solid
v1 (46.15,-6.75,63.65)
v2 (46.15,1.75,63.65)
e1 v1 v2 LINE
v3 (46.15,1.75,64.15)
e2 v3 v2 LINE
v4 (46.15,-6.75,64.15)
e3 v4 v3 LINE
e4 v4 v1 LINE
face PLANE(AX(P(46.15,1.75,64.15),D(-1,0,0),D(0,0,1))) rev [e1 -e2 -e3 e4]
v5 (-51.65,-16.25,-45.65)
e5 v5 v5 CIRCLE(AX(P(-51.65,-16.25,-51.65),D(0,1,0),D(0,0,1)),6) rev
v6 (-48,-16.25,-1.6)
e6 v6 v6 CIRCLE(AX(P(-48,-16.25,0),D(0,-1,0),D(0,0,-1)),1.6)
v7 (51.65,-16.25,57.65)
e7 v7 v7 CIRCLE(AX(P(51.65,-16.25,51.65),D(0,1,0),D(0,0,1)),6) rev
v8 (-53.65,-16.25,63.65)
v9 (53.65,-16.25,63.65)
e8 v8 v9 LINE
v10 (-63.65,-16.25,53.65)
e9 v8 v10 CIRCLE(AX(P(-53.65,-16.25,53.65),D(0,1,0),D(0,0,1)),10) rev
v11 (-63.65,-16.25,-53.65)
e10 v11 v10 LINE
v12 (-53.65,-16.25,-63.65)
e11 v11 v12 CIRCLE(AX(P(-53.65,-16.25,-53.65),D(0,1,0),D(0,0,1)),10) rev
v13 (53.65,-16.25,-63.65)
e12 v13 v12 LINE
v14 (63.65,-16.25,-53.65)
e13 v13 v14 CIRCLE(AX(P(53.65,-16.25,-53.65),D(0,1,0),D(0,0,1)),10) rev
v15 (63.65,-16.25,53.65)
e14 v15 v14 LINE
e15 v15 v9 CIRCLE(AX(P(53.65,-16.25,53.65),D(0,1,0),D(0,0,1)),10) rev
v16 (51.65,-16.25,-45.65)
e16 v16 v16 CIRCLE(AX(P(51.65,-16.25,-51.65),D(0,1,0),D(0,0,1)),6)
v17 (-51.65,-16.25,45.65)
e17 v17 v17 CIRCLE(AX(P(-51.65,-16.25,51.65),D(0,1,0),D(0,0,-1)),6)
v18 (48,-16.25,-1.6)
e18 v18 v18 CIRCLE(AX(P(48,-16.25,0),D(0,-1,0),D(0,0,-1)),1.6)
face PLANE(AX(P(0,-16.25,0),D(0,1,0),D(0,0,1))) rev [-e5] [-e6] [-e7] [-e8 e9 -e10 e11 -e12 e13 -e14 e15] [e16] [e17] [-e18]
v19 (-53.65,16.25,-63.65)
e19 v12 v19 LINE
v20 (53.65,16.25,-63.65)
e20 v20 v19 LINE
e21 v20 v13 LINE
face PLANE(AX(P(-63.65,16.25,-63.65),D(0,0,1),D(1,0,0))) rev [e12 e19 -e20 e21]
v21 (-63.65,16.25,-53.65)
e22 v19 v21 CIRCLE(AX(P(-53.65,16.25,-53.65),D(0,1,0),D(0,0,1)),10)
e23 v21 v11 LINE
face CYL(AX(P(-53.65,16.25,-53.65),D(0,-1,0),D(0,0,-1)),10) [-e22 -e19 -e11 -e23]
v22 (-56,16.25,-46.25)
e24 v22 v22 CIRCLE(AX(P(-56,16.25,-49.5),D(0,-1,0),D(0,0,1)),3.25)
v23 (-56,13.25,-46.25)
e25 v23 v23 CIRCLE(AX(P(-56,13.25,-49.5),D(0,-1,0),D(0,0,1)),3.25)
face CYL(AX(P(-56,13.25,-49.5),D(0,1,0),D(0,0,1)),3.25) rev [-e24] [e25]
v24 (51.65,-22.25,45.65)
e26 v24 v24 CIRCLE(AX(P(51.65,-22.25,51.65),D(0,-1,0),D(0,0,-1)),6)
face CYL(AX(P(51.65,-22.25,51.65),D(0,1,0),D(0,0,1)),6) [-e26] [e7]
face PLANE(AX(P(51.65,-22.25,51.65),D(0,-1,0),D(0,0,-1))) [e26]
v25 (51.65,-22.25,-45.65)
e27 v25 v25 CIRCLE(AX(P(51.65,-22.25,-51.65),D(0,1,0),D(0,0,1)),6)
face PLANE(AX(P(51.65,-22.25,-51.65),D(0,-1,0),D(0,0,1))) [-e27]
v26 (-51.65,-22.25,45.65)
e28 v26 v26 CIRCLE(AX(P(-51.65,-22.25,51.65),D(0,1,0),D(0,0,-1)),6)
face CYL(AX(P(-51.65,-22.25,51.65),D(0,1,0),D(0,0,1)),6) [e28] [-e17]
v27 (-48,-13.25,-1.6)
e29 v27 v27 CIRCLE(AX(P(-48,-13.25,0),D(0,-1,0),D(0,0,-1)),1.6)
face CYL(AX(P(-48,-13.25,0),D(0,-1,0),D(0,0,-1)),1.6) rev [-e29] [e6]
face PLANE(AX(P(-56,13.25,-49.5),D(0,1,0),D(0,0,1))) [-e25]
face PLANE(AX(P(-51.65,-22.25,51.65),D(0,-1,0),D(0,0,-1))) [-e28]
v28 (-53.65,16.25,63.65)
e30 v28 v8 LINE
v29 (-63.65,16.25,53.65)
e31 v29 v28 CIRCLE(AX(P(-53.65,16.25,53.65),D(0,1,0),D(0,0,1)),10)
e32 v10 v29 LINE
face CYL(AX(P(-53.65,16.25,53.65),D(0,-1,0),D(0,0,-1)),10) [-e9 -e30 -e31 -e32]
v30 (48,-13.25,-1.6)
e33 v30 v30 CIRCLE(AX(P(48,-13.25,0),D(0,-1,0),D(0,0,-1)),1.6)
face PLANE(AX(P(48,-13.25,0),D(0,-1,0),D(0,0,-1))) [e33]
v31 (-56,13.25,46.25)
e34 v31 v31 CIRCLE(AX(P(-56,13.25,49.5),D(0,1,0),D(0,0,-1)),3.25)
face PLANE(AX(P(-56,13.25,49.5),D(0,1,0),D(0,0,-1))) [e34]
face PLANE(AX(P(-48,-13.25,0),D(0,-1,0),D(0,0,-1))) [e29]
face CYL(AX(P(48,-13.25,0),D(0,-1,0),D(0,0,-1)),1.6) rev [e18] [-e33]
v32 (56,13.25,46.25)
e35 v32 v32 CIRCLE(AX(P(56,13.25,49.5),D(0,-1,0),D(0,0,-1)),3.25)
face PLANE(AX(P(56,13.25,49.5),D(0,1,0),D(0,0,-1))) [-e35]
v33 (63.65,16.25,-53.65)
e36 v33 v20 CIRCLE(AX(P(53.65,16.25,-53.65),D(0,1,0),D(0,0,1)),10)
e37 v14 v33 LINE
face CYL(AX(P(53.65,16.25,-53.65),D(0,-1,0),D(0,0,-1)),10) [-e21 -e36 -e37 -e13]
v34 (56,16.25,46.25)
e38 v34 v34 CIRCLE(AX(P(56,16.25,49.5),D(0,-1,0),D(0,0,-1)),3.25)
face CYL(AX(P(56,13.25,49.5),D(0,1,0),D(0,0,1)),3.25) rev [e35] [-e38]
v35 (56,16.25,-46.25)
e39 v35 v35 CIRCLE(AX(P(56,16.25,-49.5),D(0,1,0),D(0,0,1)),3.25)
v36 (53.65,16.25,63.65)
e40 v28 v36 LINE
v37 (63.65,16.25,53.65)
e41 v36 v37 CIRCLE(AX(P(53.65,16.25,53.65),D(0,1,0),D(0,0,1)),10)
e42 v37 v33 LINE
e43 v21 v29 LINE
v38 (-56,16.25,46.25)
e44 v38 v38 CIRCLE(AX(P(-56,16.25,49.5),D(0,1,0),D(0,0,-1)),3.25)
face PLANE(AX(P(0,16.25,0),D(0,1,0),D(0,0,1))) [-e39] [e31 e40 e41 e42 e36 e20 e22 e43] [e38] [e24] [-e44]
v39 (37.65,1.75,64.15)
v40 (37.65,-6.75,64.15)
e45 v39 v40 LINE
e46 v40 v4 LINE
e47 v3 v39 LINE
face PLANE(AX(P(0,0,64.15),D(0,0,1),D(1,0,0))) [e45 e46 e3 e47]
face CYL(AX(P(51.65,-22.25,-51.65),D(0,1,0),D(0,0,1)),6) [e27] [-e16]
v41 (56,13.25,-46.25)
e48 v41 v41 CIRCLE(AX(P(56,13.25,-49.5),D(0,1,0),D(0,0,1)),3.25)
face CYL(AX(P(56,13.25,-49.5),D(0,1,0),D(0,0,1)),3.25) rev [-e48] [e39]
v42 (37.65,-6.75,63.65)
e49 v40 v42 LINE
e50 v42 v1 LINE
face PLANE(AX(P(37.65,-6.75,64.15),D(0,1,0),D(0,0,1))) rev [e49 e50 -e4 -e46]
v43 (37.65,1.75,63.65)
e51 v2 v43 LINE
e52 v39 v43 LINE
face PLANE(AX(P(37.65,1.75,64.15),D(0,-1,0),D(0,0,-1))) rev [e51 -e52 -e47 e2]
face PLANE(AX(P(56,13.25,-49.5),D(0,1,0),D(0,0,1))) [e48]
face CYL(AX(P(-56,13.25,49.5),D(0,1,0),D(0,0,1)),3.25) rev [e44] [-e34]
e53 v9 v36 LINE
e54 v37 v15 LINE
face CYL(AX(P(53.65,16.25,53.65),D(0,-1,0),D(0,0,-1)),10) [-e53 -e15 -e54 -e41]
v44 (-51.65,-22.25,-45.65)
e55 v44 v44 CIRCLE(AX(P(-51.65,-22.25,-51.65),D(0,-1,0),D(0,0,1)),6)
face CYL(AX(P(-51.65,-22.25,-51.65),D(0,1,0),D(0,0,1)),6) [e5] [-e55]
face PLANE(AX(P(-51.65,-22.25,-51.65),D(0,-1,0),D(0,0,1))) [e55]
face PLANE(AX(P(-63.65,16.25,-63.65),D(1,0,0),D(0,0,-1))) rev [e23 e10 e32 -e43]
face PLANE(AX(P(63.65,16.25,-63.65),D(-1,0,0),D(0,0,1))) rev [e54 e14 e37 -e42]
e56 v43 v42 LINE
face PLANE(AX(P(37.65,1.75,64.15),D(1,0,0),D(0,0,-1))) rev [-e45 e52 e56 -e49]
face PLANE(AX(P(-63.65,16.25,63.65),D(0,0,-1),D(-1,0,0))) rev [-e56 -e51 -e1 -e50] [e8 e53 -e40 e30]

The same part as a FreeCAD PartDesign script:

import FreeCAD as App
import Part
import Sketcher

V = App.Vector
Q = App.Units.Quantity


def edges_at(feature, points):
    """Names of the edges that pass closest to the given points."""
    edges = feature.Shape.Edges
    near = lambda p: min(range(len(edges)), key=lambda i: edges[i].distToShape(Part.Vertex(*p))[0])
    return sorted({f"Edge{near(p) + 1}" for p in points})

doc = App.newDocument("Part")
body = doc.addObject("PartDesign::Body", "Body")

# Sketch on XZ plane
sketch1 = doc.addObject("Sketcher::SketchObject", "Sketch")
body.addObject(sketch1)
sketch1.AttachmentSupport = (doc.XZ_Plane, [""])
sketch1.MapMode = "FlatFace"
sketch1.addGeometry([
    Part.LineSegment(V(-63.65, -63.65, 0), V(-63.65, 63.65, 0)),
    Part.LineSegment(V(-63.65, 63.65, 0), V(63.65, 63.65, 0)),
    Part.LineSegment(V(63.65, 63.65, 0), V(63.65, -63.65, 0)),
    Part.LineSegment(V(63.65, -63.65, 0), V(-63.65, -63.65, 0)),
], False)
sketch1.addConstraint([
    Sketcher.Constraint("Coincident", 0, 2, 1, 1),
    Sketcher.Constraint("Coincident", 1, 2, 2, 1),
    Sketcher.Constraint("Coincident", 2, 2, 3, 1),
    Sketcher.Constraint("Coincident", 3, 2, 0, 1),
    Sketcher.Constraint("Vertical", 0),
    Sketcher.Constraint("Horizontal", 1),
    Sketcher.Constraint("Vertical", 2),
    Sketcher.Constraint("Horizontal", 3),
    Sketcher.Constraint("Symmetric", 0, 2, 2, 2, -1, 1),
    Sketcher.Constraint("Equal", 3, 0),
    Sketcher.Constraint("DistanceX", 1, 1, 1, 2, Q("127.3 mm")),
])
pad1 = doc.addObject("PartDesign::Pad", "Pad")
body.addObject(pad1)
pad1.Profile = sketch1
pad1.Length = 32.5
pad1.Midplane = True

# Sketch on XY plane
sketch2 = doc.addObject("Sketcher::SketchObject", "Sketch001")
body.addObject(sketch2)
sketch2.AttachmentSupport = (doc.XY_Plane, [""])
sketch2.MapMode = "FlatFace"
sketch2.AttachmentOffset = App.Placement(V(0, 0, 63.65), App.Rotation())
sketch2.addGeometry([
    Part.LineSegment(V(37.65, 1.75, 0), V(37.65, -6.75, 0)),
    Part.LineSegment(V(37.65, -6.75, 0), V(46.15, -6.75, 0)),
    Part.LineSegment(V(46.15, -6.75, 0), V(46.15, 1.75, 0)),
    Part.LineSegment(V(46.15, 1.75, 0), V(37.65, 1.75, 0)),
], False)
sketch2.addConstraint([
    Sketcher.Constraint("Coincident", 0, 2, 1, 1),
    Sketcher.Constraint("Coincident", 1, 2, 2, 1),
    Sketcher.Constraint("Coincident", 2, 2, 3, 1),
    Sketcher.Constraint("Coincident", 3, 2, 0, 1),
    Sketcher.Constraint("Vertical", 0),
    Sketcher.Constraint("Horizontal", 1),
    Sketcher.Constraint("Vertical", 2),
    Sketcher.Constraint("Horizontal", 3),
    Sketcher.Constraint("Equal", 3, 0),
    Sketcher.Constraint("DistanceX", 1, 1, 1, 2, Q("8.5 mm")),
    Sketcher.Constraint("DistanceX", -1, 1, 0, 2, Q("37.65 mm")),
    Sketcher.Constraint("DistanceY", 0, 2, -1, 1, Q("6.75 mm")),
])
pad2 = doc.addObject("PartDesign::Pad", "Pad001")
body.addObject(pad2)
pad2.Profile = sketch2
pad2.Length = 1
pad2.Midplane = True

# Sketch on XZ plane
sketch3 = doc.addObject("Sketcher::SketchObject", "Sketch002")
body.addObject(sketch3)
sketch3.AttachmentSupport = (doc.XZ_Plane, [""])
sketch3.MapMode = "FlatFace"
sketch3.AttachmentOffset = App.Placement(V(0, 0, 16.25), App.Rotation())
sketch3.addGeometry(Part.Circle(V(51.65, 51.65, 0), V(0, 0, 1), 6), False)
sketch3.addConstraint([
    Sketcher.Constraint("Diameter", 0, Q("12 mm")),
    Sketcher.Constraint("DistanceX", -1, 1, 0, 3, Q("51.65 mm")),
    Sketcher.Constraint("DistanceY", -1, 1, 0, 3, Q("51.65 mm")),
])
pad3 = doc.addObject("PartDesign::Pad", "Pad002")
body.addObject(pad3)
pad3.Profile = sketch3
pad3.Length = 6
doc.recompute()

mirrored = doc.addObject("PartDesign::Mirrored", "Mirrored")
body.addObject(mirrored)
mirrored.Originals = [pad3]
mirrored.MirrorPlane = (doc.XY_Plane, [""])
body.Tip = mirrored
doc.recompute()

mirrored2 = doc.addObject("PartDesign::Mirrored", "Mirrored001")
body.addObject(mirrored2)
mirrored2.Originals = [pad3]
mirrored2.MirrorPlane = (doc.YZ_Plane, [""])
body.Tip = mirrored2

# Sketch on XZ plane
sketch4 = doc.addObject("Sketcher::SketchObject", "Sketch003")
body.addObject(sketch4)
sketch4.AttachmentSupport = (doc.XZ_Plane, [""])
sketch4.MapMode = "FlatFace"
sketch4.AttachmentOffset = App.Placement(V(0, 0, 16.25), App.Rotation())
sketch4.addGeometry(Part.Circle(V(-51.65, -51.65, 0), V(0, 0, 1), 6), False)
sketch4.addConstraint([
    Sketcher.Constraint("Diameter", 0, Q("12 mm")),
    Sketcher.Constraint("DistanceX", 0, 3, -1, 1, Q("51.65 mm")),
    Sketcher.Constraint("DistanceY", 0, 3, -1, 1, Q("51.65 mm")),
])
pad4 = doc.addObject("PartDesign::Pad", "Pad003")
body.addObject(pad4)
pad4.Profile = sketch4
pad4.Length = 6

# Sketch on XZ plane
sketch5 = doc.addObject("Sketcher::SketchObject", "Sketch004")
body.addObject(sketch5)
sketch5.AttachmentSupport = (doc.XZ_Plane, [""])
sketch5.MapMode = "FlatFace"
sketch5.AttachmentOffset = App.Placement(V(0, 0, -16.25), App.Rotation())
sketch5.addGeometry(Part.Circle(V(56, -49.5, 0), V(0, 0, 1), 3.25), False)
sketch5.addConstraint([
    Sketcher.Constraint("Diameter", 0, Q("6.5 mm")),
    Sketcher.Constraint("DistanceX", -1, 1, 0, 3, Q("56 mm")),
    Sketcher.Constraint("DistanceY", 0, 3, -1, 1, Q("49.5 mm")),
])
pocket1 = doc.addObject("PartDesign::Pocket", "Pocket")
body.addObject(pocket1)
pocket1.Profile = sketch5
pocket1.Length = 3
pocket1.Reversed = True
doc.recompute()

mirrored3 = doc.addObject("PartDesign::Mirrored", "Mirrored002")
body.addObject(mirrored3)
mirrored3.Originals = [pocket1]
mirrored3.MirrorPlane = (doc.YZ_Plane, [""])
body.Tip = mirrored3
doc.recompute()

mirrored4 = doc.addObject("PartDesign::Mirrored", "Mirrored003")
body.addObject(mirrored4)
mirrored4.Originals = [pocket1]
mirrored4.MirrorPlane = (doc.XY_Plane, [""])
body.Tip = mirrored4

# Sketch on XZ plane
sketch6 = doc.addObject("Sketcher::SketchObject", "Sketch005")
body.addObject(sketch6)
sketch6.AttachmentSupport = (doc.XZ_Plane, [""])
sketch6.MapMode = "FlatFace"
sketch6.AttachmentOffset = App.Placement(V(0, 0, -16.25), App.Rotation())
sketch6.addGeometry(Part.Circle(V(-56, 49.5, 0), V(0, 0, 1), 3.25), False)
sketch6.addConstraint([
    Sketcher.Constraint("Diameter", 0, Q("6.5 mm")),
    Sketcher.Constraint("DistanceX", 0, 3, -1, 1, Q("56 mm")),
    Sketcher.Constraint("DistanceY", -1, 1, 0, 3, Q("49.5 mm")),
])
pocket2 = doc.addObject("PartDesign::Pocket", "Pocket001")
body.addObject(pocket2)
pocket2.Profile = sketch6
pocket2.Length = 3
pocket2.Reversed = True
doc.recompute()

fillet = doc.addObject("PartDesign::Fillet", "Fillet")
body.addObject(fillet)
fillet.Base = (pocket2, edges_at(pocket2, [
    (63.65, 0, 63.65),
    (-63.65, 0, 63.65),
    (-63.65, 0, -63.65),
    (63.65, 0, -63.65),
]))
fillet.Radius = 10

# Sketch on XZ plane
sketch7 = doc.addObject("Sketcher::SketchObject", "Sketch006")
body.addObject(sketch7)
sketch7.AttachmentSupport = (doc.XZ_Plane, [""])
sketch7.MapMode = "FlatFace"
sketch7.AttachmentOffset = App.Placement(V(0, 0, 16.25), App.Rotation())
sketch7.addGeometry([
    Part.Circle(V(-48, 0, 0), V(0, 0, 1), 1.6),
    Part.Circle(V(48, 0, 0), V(0, 0, 1), 1.6),
], False)
sketch7.addConstraint([
    Sketcher.Constraint("Equal", 0, 1),
    Sketcher.Constraint("Symmetric", 0, 3, 1, 3, -1, 1),
    Sketcher.Constraint("PointOnObject", 0, 3, -1),
    Sketcher.Constraint("Diameter", 0, Q("3.2 mm")),
    Sketcher.Constraint("DistanceX", 0, 3, -1, 1, Q("48 mm")),
])
pocket3 = doc.addObject("PartDesign::Pocket", "Pocket002")
body.addObject(pocket3)
pocket3.Profile = sketch7
pocket3.Length = 3

doc.recompute()
